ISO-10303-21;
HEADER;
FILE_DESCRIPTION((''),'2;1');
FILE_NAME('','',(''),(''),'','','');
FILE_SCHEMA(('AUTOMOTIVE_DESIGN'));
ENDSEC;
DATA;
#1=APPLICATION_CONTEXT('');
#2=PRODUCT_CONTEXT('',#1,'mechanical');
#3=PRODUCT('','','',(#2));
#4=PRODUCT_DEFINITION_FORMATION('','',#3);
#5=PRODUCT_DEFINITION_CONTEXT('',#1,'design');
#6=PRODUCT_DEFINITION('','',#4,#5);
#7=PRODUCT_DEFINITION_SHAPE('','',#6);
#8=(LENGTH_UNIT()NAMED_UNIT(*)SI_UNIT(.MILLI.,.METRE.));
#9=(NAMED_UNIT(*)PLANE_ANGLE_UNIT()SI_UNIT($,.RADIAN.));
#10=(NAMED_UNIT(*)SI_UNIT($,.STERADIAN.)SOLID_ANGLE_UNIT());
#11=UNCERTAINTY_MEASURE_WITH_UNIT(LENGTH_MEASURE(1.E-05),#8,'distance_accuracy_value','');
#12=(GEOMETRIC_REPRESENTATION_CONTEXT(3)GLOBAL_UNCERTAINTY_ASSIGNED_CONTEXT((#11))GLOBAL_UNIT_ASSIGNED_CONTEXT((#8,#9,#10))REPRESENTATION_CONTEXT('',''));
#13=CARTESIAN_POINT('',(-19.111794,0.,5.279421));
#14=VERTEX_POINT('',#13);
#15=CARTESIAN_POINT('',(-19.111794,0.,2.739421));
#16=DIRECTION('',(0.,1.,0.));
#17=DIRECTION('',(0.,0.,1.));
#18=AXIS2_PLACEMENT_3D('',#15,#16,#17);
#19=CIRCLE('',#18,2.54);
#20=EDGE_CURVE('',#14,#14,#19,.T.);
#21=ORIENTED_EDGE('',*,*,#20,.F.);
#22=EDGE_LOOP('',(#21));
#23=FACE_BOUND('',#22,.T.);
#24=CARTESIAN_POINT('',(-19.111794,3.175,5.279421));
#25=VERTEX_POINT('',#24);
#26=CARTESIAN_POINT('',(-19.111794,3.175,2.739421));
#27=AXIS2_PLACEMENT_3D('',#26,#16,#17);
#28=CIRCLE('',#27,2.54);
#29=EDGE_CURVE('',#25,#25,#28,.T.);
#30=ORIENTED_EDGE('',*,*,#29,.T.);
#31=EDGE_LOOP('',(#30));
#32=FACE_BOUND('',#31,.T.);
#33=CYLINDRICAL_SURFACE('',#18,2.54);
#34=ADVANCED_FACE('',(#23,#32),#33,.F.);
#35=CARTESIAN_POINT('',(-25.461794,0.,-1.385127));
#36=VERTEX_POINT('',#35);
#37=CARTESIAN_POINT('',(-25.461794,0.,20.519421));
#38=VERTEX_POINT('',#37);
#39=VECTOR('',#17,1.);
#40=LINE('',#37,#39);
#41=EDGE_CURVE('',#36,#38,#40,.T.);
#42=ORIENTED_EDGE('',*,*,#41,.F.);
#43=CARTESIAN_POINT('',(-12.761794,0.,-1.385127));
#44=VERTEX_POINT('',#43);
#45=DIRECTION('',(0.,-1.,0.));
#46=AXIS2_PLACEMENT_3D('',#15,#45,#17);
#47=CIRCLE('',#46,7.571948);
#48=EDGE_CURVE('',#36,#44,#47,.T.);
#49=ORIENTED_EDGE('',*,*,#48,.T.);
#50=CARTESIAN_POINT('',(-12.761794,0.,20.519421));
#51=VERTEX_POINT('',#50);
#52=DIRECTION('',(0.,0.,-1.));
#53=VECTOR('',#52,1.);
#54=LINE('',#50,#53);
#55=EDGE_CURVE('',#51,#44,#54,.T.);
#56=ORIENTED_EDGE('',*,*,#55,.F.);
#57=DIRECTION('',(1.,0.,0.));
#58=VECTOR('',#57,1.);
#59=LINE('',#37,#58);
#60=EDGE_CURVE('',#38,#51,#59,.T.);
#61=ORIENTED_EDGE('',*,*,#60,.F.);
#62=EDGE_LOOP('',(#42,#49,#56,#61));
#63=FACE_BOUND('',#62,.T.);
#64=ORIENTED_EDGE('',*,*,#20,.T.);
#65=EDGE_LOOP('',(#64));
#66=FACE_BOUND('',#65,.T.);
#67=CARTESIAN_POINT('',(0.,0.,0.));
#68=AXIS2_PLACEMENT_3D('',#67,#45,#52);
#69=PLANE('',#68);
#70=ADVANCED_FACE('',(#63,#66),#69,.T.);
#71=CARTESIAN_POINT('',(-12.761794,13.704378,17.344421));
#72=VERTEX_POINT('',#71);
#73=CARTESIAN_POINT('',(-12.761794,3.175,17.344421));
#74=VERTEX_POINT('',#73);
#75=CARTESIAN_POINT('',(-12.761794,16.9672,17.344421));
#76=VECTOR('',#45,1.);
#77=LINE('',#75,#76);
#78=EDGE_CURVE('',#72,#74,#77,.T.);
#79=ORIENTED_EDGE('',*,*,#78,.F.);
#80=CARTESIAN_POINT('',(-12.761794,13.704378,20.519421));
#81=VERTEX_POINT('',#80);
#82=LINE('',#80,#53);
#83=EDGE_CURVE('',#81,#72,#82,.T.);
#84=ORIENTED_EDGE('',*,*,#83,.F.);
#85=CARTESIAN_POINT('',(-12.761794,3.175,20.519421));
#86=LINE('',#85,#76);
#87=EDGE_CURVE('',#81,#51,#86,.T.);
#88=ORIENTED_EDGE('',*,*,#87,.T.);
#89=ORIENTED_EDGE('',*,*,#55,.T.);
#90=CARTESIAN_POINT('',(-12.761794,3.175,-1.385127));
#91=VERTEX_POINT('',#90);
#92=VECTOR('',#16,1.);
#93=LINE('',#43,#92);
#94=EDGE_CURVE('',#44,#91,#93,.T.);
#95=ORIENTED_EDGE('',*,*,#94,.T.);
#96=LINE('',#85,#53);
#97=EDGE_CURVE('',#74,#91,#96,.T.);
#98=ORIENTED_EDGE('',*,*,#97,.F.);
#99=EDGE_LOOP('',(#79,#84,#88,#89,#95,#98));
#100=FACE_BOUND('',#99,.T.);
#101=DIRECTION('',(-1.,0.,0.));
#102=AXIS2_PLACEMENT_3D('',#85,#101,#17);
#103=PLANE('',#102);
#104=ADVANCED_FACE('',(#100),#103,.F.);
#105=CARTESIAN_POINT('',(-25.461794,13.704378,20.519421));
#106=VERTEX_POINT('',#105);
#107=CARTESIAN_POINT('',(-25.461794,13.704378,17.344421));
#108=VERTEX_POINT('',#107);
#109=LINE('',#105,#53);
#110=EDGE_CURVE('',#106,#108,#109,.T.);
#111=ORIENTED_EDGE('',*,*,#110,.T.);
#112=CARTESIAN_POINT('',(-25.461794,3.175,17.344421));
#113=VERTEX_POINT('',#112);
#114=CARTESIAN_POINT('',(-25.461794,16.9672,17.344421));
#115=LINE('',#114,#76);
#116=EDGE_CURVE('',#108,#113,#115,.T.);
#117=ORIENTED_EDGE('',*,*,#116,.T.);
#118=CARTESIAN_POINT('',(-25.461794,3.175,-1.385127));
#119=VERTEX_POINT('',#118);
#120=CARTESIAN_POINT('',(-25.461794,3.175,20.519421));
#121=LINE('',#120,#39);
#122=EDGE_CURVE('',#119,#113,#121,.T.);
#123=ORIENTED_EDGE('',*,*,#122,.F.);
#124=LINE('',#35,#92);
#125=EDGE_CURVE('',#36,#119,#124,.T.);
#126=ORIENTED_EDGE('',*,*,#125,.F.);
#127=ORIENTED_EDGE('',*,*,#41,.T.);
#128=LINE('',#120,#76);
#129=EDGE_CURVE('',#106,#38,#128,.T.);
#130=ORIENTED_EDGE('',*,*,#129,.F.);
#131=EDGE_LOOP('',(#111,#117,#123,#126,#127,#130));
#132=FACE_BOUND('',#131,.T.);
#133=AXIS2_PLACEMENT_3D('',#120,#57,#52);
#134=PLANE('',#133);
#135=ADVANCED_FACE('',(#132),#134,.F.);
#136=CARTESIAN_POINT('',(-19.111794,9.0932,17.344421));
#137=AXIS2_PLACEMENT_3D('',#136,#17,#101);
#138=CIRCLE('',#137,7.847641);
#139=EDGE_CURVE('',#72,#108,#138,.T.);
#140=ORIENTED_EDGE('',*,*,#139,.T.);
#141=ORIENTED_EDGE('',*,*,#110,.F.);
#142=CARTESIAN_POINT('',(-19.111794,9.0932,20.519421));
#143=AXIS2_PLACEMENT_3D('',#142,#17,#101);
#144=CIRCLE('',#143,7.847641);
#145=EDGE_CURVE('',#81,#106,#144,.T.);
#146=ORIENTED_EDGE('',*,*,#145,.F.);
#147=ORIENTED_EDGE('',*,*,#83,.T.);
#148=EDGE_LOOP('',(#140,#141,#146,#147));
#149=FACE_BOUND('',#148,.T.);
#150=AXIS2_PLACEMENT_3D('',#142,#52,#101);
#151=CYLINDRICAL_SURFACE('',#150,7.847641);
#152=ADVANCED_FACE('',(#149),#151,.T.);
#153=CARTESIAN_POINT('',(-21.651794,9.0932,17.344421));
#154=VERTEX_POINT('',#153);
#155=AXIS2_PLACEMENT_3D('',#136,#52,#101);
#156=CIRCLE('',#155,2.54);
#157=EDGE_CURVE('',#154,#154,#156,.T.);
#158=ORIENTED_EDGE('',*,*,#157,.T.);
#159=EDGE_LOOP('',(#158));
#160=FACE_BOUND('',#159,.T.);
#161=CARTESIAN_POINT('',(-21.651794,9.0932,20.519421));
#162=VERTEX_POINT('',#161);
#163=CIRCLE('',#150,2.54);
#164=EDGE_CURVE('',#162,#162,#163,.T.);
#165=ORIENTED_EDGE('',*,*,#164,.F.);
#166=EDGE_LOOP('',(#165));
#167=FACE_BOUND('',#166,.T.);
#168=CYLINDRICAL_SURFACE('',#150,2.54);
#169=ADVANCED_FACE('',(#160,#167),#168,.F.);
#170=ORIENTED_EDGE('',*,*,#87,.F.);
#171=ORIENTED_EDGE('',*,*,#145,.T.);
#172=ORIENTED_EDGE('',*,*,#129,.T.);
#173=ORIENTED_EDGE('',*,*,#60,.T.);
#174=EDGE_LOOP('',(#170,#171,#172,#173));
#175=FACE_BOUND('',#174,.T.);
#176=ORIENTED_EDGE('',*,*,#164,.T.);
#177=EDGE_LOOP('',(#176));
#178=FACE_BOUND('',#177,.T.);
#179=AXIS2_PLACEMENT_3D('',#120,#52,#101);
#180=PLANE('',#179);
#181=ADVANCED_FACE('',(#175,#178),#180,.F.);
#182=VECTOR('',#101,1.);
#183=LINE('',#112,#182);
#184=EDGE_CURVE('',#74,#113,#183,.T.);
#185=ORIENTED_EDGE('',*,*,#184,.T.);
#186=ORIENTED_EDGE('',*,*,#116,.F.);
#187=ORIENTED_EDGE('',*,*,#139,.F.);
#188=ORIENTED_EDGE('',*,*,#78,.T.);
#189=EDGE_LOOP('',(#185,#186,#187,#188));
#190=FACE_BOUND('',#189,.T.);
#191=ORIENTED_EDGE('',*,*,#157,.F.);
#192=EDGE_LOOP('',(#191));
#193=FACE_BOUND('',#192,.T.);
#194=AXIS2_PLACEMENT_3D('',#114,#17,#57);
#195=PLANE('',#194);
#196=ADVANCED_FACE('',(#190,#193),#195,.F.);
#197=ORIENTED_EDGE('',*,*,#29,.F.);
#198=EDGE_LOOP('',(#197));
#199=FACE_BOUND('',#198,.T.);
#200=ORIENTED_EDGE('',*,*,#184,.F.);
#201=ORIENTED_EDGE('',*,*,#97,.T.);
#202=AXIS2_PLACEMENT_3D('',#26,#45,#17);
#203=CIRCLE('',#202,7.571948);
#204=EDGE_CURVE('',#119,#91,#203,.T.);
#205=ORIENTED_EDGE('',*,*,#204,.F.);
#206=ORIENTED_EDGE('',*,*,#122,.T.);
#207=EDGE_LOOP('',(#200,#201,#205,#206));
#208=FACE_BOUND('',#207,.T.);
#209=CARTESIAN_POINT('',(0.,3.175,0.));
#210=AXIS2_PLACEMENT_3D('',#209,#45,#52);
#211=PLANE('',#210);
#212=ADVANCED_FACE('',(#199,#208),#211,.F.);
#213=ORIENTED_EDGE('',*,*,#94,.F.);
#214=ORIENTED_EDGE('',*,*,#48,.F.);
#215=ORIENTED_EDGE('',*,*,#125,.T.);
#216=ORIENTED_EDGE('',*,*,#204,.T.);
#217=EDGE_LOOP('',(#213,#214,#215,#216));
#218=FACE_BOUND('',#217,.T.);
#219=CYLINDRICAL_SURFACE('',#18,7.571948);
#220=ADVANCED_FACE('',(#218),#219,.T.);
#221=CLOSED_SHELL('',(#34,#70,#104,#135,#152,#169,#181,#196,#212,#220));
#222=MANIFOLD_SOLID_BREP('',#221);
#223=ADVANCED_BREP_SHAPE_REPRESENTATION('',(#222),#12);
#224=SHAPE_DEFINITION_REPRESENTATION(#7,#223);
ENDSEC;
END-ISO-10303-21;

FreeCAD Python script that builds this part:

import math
import FreeCAD as App
import Part
import Sketcher
Q = App.Units.Quantity

doc = App.newDocument("Part")
body = doc.addObject("PartDesign::Body", "Body")

# Sketch on XZ plane
sketch1 = body.newObject("Sketcher::SketchObject", "Sketch")
sketch1.AttachmentSupport = (doc.getObject("XZ_Plane"), [""])
sketch1.MapMode = "FlatFace"
sketch1.addGeometry([
    Part.LineSegment(App.Vector(-25.461794, -4.880579, 0), App.Vector(-25.461794, 20.519421, 0)),
    Part.LineSegment(App.Vector(-25.461794, 20.519421, 0), App.Vector(-12.761794, 20.519421, 0)),
    Part.LineSegment(App.Vector(-12.761794, 20.519421, 0), App.Vector(-12.761794, -4.880579, 0)),
    Part.LineSegment(App.Vector(-12.761794, -4.880579, 0), App.Vector(-25.461794, -4.880579, 0)),
], False)
sketch1.addConstraint([
    Sketcher.Constraint("Coincident", 0, 2, 1, 1),
    Sketcher.Constraint("Coincident", 1, 2, 2, 1),
    Sketcher.Constraint("Coincident", 2, 2, 3, 1),
    Sketcher.Constraint("Coincident", 3, 2, 0, 1),
    Sketcher.Constraint("Vertical", 0),
    Sketcher.Constraint("Horizontal", 1),
    Sketcher.Constraint("Vertical", 2),
    Sketcher.Constraint("Horizontal", 3),
    Sketcher.Constraint("DistanceY", 0, 1, 0, 2, Q("1 in")),
    Sketcher.Constraint("DistanceX", 1, 1, 1, 2, Q("0.5 in")),
    Sketcher.Constraint("DistanceY", -1, 1, 0, 2, Q("20.519421 mm")),
    Sketcher.Constraint("DistanceX", 0, 2, -1, 1, Q("25.461794 mm")),
])
pad1 = body.newObject("PartDesign::Pad", "Pad")
pad1.Profile = sketch1
pad1.Length = Q("0.125 in")
pad1.Reversed = True

# Sketch on XZ plane
sketch2 = body.newObject("Sketcher::SketchObject", "Sketch001")
sketch2.AttachmentSupport = (doc.getObject("XZ_Plane"), [""])
sketch2.MapMode = "FlatFace"
sketch2.AttachmentOffset = App.Placement(App.Vector(0, 0, -0.125 * 25.4), App.Rotation())
sketch2.addGeometry([
    Part.LineSegment(App.Vector(-25.461794, 17.344421, 0), App.Vector(-25.461794, 20.519421, 0)),
    Part.LineSegment(App.Vector(-25.461794, 20.519421, 0), App.Vector(-12.761794, 20.519421, 0)),
    Part.LineSegment(App.Vector(-12.761794, 20.519421, 0), App.Vector(-12.761794, 17.344421, 0)),
    Part.LineSegment(App.Vector(-12.761794, 17.344421, 0), App.Vector(-25.461794, 17.344421, 0)),
], False)
sketch2.addConstraint([
    Sketcher.Constraint("Coincident", 0, 2, 1, 1),
    Sketcher.Constraint("Coincident", 1, 2, 2, 1),
    Sketcher.Constraint("Coincident", 2, 2, 3, 1),
    Sketcher.Constraint("Coincident", 3, 2, 0, 1),
    Sketcher.Constraint("Vertical", 0),
    Sketcher.Constraint("Horizontal", 1),
    Sketcher.Constraint("Vertical", 2),
    Sketcher.Constraint("Horizontal", 3),
    Sketcher.Constraint("DistanceX", 1, 1, 1, 2, Q("0.5 in")),
    Sketcher.Constraint("DistanceY", 0, 1, 0, 2, Q("0.125 in")),
    Sketcher.Constraint("DistanceY", -1, 1, 0, 2, Q("20.519421 mm")),
    Sketcher.Constraint("DistanceX", 0, 2, -1, 1, Q("25.461794 mm")),
])
pad2 = body.newObject("PartDesign::Pad", "Pad001")
pad2.Profile = sketch2
pad2.Length = Q("0.543 in")
pad2.Reversed = True

# Sketch on XZ plane
sketch3 = body.newObject("Sketcher::SketchObject", "Sketch002")
sketch3.AttachmentSupport = (doc.getObject("XZ_Plane"), [""])
sketch3.MapMode = "FlatFace"
sketch3.AttachmentOffset = App.Placement(App.Vector(0, 0, -0.125 * 25.4), App.Rotation())
sketch3.addGeometry(Part.Circle(App.Vector(-19.111794, 2.739421, 0), App.Vector(0, 0, 1), 2.54), False)
sketch3.addConstraint([
    Sketcher.Constraint("Diameter", 0, Q("0.2 in")),
    Sketcher.Constraint("DistanceY", -1, 1, 0, 3, Q("2.739421 mm")),
    Sketcher.Constraint("DistanceX", 0, 3, -1, 1, Q("19.111794 mm")),
])
pocket1 = body.newObject("PartDesign::Pocket", "Pocket")
pocket1.Profile = sketch3
pocket1.Type = "ThroughAll"
pocket1.Reversed = True

# Sketch on XZ plane
sketch4 = body.newObject("Sketcher::SketchObject", "Sketch003")
sketch4.AttachmentSupport = (doc.getObject("XZ_Plane"), [""])
sketch4.MapMode = "FlatFace"
sketch4.AttachmentOffset = App.Placement(App.Vector(0, 0, -0.125 * 25.4), App.Rotation())
sketch4.addGeometry([
    Part.LineSegment(App.Vector(-12.761794, -4.880579, 0), App.Vector(-25.461794, -4.880579, 0)),
    Part.LineSegment(App.Vector(-25.461794, -4.880579, 0), App.Vector(-25.461794, -1.385127, 0)),
    Part.ArcOfCircle(Part.Circle(App.Vector(-19.111794, 2.739421, 0), App.Vector(0, 0, 1), 7.571948), math.radians(-146.994857), math.radians(-33.005143)),
    Part.LineSegment(App.Vector(-12.761794, -1.385127, 0), App.Vector(-12.761794, -4.880579, 0)),
], False)
sketch4.addConstraint([
    Sketcher.Constraint("Coincident", 0, 2, 1, 1),
    Sketcher.Constraint("Coincident", 1, 2, 2, 1),
    Sketcher.Constraint("Coincident", 2, 2, 3, 1),
    Sketcher.Constraint("Coincident", 3, 2, 0, 1),
    Sketcher.Constraint("Horizontal", 0),
    Sketcher.Constraint("Vertical", 1),
    Sketcher.Constraint("Vertical", 3),
    Sketcher.Constraint("Horizontal", 1, 2, 2, 2),
    Sketcher.Constraint("DistanceX", 0, 2, 0, 1, Q("0.5 in")),
    Sketcher.Constraint("DistanceY", 0, 2, 2, 3, Q("0.3 in")),
    Sketcher.Constraint("Radius", 2, Q("7.571948 mm")),
    Sketcher.Constraint("DistanceY", -1, 1, 2, 3, Q("2.739421 mm")),
    Sketcher.Constraint("DistanceX", 2, 3, -1, 1, Q("19.111794 mm")),
])
pocket2 = body.newObject("PartDesign::Pocket", "Pocket001")
pocket2.Profile = sketch4
pocket2.Type = "ThroughAll"
pocket2.Reversed = True

# Sketch on XY plane
sketch5 = body.newObject("Sketcher::SketchObject", "Sketch004")
sketch5.AttachmentSupport = (doc.getObject("XY_Plane"), [""])
sketch5.MapMode = "FlatFace"
sketch5.AttachmentOffset = App.Placement(App.Vector(0, 0, 17.344421), App.Rotation())
sketch5.addGeometry(Part.Circle(App.Vector(-19.111794, 9.0932, 0), App.Vector(0, 0, 1), 2.54), False)
sketch5.addConstraint([
    Sketcher.Constraint("Diameter", 0, Q("0.2 in")),
    Sketcher.Constraint("DistanceY", -1, 1, 0, 3, Q("0.358 in")),
    Sketcher.Constraint("DistanceX", 0, 3, -1, 1, Q("19.111794 mm")),
])
pocket3 = body.newObject("PartDesign::Pocket", "Pocket002")
pocket3.Profile = sketch5
pocket3.Type = "ThroughAll"
pocket3.Reversed = True

# Sketch on XY plane
sketch6 = body.newObject("Sketcher::SketchObject", "Sketch005")
sketch6.AttachmentSupport = (doc.getObject("XY_Plane"), [""])
sketch6.MapMode = "FlatFace"
sketch6.AttachmentOffset = App.Placement(App.Vector(0, 0, 17.344421), App.Rotation())
sketch6.addGeometry([
    Part.LineSegment(App.Vector(-25.461794, 16.9672, 0), App.Vector(-12.761794, 16.9672, 0)),
    Part.LineSegment(App.Vector(-12.761794, 16.9672, 0), App.Vector(-12.761794, 13.704378, 0)),
    Part.ArcOfCircle(Part.Circle(App.Vector(-19.111794, 9.0932, 0), App.Vector(0, 0, 1), 7.847641), math.radians(35.986018), math.radians(144.013982)),
    Part.LineSegment(App.Vector(-25.461794, 13.704378, 0), App.Vector(-25.461794, 16.9672, 0)),
], False)
sketch6.addConstraint([
    Sketcher.Constraint("Coincident", 0, 2, 1, 1),
    Sketcher.Constraint("Coincident", 1, 2, 2, 1),
    Sketcher.Constraint("Coincident", 2, 2, 3, 1),
    Sketcher.Constraint("Coincident", 3, 2, 0, 1),
    Sketcher.Constraint("Horizontal", 0),
    Sketcher.Constraint("Vertical", 1),
    Sketcher.Constraint("Vertical", 3),
    Sketcher.Constraint("Horizontal", 1, 2, 2, 2),
    Sketcher.Constraint("DistanceX", 0, 1, 0, 2, Q("0.5 in")),
    Sketcher.Constraint("DistanceY", 2, 3, 0, 2, Q("0.31 in")),
    Sketcher.Constraint("DistanceY", -1, 1, 2, 3, Q("0.358 in")),
    Sketcher.Constraint("Radius", 2, Q("7.847641 mm")),
    Sketcher.Constraint("DistanceX", 2, 3, -1, 1, Q("19.111794 mm")),
])
pocket4 = body.newObject("PartDesign::Pocket", "Pocket003")
pocket4.Profile = sketch6
pocket4.Type = "ThroughAll"
pocket4.Reversed = True

doc.recompute()
